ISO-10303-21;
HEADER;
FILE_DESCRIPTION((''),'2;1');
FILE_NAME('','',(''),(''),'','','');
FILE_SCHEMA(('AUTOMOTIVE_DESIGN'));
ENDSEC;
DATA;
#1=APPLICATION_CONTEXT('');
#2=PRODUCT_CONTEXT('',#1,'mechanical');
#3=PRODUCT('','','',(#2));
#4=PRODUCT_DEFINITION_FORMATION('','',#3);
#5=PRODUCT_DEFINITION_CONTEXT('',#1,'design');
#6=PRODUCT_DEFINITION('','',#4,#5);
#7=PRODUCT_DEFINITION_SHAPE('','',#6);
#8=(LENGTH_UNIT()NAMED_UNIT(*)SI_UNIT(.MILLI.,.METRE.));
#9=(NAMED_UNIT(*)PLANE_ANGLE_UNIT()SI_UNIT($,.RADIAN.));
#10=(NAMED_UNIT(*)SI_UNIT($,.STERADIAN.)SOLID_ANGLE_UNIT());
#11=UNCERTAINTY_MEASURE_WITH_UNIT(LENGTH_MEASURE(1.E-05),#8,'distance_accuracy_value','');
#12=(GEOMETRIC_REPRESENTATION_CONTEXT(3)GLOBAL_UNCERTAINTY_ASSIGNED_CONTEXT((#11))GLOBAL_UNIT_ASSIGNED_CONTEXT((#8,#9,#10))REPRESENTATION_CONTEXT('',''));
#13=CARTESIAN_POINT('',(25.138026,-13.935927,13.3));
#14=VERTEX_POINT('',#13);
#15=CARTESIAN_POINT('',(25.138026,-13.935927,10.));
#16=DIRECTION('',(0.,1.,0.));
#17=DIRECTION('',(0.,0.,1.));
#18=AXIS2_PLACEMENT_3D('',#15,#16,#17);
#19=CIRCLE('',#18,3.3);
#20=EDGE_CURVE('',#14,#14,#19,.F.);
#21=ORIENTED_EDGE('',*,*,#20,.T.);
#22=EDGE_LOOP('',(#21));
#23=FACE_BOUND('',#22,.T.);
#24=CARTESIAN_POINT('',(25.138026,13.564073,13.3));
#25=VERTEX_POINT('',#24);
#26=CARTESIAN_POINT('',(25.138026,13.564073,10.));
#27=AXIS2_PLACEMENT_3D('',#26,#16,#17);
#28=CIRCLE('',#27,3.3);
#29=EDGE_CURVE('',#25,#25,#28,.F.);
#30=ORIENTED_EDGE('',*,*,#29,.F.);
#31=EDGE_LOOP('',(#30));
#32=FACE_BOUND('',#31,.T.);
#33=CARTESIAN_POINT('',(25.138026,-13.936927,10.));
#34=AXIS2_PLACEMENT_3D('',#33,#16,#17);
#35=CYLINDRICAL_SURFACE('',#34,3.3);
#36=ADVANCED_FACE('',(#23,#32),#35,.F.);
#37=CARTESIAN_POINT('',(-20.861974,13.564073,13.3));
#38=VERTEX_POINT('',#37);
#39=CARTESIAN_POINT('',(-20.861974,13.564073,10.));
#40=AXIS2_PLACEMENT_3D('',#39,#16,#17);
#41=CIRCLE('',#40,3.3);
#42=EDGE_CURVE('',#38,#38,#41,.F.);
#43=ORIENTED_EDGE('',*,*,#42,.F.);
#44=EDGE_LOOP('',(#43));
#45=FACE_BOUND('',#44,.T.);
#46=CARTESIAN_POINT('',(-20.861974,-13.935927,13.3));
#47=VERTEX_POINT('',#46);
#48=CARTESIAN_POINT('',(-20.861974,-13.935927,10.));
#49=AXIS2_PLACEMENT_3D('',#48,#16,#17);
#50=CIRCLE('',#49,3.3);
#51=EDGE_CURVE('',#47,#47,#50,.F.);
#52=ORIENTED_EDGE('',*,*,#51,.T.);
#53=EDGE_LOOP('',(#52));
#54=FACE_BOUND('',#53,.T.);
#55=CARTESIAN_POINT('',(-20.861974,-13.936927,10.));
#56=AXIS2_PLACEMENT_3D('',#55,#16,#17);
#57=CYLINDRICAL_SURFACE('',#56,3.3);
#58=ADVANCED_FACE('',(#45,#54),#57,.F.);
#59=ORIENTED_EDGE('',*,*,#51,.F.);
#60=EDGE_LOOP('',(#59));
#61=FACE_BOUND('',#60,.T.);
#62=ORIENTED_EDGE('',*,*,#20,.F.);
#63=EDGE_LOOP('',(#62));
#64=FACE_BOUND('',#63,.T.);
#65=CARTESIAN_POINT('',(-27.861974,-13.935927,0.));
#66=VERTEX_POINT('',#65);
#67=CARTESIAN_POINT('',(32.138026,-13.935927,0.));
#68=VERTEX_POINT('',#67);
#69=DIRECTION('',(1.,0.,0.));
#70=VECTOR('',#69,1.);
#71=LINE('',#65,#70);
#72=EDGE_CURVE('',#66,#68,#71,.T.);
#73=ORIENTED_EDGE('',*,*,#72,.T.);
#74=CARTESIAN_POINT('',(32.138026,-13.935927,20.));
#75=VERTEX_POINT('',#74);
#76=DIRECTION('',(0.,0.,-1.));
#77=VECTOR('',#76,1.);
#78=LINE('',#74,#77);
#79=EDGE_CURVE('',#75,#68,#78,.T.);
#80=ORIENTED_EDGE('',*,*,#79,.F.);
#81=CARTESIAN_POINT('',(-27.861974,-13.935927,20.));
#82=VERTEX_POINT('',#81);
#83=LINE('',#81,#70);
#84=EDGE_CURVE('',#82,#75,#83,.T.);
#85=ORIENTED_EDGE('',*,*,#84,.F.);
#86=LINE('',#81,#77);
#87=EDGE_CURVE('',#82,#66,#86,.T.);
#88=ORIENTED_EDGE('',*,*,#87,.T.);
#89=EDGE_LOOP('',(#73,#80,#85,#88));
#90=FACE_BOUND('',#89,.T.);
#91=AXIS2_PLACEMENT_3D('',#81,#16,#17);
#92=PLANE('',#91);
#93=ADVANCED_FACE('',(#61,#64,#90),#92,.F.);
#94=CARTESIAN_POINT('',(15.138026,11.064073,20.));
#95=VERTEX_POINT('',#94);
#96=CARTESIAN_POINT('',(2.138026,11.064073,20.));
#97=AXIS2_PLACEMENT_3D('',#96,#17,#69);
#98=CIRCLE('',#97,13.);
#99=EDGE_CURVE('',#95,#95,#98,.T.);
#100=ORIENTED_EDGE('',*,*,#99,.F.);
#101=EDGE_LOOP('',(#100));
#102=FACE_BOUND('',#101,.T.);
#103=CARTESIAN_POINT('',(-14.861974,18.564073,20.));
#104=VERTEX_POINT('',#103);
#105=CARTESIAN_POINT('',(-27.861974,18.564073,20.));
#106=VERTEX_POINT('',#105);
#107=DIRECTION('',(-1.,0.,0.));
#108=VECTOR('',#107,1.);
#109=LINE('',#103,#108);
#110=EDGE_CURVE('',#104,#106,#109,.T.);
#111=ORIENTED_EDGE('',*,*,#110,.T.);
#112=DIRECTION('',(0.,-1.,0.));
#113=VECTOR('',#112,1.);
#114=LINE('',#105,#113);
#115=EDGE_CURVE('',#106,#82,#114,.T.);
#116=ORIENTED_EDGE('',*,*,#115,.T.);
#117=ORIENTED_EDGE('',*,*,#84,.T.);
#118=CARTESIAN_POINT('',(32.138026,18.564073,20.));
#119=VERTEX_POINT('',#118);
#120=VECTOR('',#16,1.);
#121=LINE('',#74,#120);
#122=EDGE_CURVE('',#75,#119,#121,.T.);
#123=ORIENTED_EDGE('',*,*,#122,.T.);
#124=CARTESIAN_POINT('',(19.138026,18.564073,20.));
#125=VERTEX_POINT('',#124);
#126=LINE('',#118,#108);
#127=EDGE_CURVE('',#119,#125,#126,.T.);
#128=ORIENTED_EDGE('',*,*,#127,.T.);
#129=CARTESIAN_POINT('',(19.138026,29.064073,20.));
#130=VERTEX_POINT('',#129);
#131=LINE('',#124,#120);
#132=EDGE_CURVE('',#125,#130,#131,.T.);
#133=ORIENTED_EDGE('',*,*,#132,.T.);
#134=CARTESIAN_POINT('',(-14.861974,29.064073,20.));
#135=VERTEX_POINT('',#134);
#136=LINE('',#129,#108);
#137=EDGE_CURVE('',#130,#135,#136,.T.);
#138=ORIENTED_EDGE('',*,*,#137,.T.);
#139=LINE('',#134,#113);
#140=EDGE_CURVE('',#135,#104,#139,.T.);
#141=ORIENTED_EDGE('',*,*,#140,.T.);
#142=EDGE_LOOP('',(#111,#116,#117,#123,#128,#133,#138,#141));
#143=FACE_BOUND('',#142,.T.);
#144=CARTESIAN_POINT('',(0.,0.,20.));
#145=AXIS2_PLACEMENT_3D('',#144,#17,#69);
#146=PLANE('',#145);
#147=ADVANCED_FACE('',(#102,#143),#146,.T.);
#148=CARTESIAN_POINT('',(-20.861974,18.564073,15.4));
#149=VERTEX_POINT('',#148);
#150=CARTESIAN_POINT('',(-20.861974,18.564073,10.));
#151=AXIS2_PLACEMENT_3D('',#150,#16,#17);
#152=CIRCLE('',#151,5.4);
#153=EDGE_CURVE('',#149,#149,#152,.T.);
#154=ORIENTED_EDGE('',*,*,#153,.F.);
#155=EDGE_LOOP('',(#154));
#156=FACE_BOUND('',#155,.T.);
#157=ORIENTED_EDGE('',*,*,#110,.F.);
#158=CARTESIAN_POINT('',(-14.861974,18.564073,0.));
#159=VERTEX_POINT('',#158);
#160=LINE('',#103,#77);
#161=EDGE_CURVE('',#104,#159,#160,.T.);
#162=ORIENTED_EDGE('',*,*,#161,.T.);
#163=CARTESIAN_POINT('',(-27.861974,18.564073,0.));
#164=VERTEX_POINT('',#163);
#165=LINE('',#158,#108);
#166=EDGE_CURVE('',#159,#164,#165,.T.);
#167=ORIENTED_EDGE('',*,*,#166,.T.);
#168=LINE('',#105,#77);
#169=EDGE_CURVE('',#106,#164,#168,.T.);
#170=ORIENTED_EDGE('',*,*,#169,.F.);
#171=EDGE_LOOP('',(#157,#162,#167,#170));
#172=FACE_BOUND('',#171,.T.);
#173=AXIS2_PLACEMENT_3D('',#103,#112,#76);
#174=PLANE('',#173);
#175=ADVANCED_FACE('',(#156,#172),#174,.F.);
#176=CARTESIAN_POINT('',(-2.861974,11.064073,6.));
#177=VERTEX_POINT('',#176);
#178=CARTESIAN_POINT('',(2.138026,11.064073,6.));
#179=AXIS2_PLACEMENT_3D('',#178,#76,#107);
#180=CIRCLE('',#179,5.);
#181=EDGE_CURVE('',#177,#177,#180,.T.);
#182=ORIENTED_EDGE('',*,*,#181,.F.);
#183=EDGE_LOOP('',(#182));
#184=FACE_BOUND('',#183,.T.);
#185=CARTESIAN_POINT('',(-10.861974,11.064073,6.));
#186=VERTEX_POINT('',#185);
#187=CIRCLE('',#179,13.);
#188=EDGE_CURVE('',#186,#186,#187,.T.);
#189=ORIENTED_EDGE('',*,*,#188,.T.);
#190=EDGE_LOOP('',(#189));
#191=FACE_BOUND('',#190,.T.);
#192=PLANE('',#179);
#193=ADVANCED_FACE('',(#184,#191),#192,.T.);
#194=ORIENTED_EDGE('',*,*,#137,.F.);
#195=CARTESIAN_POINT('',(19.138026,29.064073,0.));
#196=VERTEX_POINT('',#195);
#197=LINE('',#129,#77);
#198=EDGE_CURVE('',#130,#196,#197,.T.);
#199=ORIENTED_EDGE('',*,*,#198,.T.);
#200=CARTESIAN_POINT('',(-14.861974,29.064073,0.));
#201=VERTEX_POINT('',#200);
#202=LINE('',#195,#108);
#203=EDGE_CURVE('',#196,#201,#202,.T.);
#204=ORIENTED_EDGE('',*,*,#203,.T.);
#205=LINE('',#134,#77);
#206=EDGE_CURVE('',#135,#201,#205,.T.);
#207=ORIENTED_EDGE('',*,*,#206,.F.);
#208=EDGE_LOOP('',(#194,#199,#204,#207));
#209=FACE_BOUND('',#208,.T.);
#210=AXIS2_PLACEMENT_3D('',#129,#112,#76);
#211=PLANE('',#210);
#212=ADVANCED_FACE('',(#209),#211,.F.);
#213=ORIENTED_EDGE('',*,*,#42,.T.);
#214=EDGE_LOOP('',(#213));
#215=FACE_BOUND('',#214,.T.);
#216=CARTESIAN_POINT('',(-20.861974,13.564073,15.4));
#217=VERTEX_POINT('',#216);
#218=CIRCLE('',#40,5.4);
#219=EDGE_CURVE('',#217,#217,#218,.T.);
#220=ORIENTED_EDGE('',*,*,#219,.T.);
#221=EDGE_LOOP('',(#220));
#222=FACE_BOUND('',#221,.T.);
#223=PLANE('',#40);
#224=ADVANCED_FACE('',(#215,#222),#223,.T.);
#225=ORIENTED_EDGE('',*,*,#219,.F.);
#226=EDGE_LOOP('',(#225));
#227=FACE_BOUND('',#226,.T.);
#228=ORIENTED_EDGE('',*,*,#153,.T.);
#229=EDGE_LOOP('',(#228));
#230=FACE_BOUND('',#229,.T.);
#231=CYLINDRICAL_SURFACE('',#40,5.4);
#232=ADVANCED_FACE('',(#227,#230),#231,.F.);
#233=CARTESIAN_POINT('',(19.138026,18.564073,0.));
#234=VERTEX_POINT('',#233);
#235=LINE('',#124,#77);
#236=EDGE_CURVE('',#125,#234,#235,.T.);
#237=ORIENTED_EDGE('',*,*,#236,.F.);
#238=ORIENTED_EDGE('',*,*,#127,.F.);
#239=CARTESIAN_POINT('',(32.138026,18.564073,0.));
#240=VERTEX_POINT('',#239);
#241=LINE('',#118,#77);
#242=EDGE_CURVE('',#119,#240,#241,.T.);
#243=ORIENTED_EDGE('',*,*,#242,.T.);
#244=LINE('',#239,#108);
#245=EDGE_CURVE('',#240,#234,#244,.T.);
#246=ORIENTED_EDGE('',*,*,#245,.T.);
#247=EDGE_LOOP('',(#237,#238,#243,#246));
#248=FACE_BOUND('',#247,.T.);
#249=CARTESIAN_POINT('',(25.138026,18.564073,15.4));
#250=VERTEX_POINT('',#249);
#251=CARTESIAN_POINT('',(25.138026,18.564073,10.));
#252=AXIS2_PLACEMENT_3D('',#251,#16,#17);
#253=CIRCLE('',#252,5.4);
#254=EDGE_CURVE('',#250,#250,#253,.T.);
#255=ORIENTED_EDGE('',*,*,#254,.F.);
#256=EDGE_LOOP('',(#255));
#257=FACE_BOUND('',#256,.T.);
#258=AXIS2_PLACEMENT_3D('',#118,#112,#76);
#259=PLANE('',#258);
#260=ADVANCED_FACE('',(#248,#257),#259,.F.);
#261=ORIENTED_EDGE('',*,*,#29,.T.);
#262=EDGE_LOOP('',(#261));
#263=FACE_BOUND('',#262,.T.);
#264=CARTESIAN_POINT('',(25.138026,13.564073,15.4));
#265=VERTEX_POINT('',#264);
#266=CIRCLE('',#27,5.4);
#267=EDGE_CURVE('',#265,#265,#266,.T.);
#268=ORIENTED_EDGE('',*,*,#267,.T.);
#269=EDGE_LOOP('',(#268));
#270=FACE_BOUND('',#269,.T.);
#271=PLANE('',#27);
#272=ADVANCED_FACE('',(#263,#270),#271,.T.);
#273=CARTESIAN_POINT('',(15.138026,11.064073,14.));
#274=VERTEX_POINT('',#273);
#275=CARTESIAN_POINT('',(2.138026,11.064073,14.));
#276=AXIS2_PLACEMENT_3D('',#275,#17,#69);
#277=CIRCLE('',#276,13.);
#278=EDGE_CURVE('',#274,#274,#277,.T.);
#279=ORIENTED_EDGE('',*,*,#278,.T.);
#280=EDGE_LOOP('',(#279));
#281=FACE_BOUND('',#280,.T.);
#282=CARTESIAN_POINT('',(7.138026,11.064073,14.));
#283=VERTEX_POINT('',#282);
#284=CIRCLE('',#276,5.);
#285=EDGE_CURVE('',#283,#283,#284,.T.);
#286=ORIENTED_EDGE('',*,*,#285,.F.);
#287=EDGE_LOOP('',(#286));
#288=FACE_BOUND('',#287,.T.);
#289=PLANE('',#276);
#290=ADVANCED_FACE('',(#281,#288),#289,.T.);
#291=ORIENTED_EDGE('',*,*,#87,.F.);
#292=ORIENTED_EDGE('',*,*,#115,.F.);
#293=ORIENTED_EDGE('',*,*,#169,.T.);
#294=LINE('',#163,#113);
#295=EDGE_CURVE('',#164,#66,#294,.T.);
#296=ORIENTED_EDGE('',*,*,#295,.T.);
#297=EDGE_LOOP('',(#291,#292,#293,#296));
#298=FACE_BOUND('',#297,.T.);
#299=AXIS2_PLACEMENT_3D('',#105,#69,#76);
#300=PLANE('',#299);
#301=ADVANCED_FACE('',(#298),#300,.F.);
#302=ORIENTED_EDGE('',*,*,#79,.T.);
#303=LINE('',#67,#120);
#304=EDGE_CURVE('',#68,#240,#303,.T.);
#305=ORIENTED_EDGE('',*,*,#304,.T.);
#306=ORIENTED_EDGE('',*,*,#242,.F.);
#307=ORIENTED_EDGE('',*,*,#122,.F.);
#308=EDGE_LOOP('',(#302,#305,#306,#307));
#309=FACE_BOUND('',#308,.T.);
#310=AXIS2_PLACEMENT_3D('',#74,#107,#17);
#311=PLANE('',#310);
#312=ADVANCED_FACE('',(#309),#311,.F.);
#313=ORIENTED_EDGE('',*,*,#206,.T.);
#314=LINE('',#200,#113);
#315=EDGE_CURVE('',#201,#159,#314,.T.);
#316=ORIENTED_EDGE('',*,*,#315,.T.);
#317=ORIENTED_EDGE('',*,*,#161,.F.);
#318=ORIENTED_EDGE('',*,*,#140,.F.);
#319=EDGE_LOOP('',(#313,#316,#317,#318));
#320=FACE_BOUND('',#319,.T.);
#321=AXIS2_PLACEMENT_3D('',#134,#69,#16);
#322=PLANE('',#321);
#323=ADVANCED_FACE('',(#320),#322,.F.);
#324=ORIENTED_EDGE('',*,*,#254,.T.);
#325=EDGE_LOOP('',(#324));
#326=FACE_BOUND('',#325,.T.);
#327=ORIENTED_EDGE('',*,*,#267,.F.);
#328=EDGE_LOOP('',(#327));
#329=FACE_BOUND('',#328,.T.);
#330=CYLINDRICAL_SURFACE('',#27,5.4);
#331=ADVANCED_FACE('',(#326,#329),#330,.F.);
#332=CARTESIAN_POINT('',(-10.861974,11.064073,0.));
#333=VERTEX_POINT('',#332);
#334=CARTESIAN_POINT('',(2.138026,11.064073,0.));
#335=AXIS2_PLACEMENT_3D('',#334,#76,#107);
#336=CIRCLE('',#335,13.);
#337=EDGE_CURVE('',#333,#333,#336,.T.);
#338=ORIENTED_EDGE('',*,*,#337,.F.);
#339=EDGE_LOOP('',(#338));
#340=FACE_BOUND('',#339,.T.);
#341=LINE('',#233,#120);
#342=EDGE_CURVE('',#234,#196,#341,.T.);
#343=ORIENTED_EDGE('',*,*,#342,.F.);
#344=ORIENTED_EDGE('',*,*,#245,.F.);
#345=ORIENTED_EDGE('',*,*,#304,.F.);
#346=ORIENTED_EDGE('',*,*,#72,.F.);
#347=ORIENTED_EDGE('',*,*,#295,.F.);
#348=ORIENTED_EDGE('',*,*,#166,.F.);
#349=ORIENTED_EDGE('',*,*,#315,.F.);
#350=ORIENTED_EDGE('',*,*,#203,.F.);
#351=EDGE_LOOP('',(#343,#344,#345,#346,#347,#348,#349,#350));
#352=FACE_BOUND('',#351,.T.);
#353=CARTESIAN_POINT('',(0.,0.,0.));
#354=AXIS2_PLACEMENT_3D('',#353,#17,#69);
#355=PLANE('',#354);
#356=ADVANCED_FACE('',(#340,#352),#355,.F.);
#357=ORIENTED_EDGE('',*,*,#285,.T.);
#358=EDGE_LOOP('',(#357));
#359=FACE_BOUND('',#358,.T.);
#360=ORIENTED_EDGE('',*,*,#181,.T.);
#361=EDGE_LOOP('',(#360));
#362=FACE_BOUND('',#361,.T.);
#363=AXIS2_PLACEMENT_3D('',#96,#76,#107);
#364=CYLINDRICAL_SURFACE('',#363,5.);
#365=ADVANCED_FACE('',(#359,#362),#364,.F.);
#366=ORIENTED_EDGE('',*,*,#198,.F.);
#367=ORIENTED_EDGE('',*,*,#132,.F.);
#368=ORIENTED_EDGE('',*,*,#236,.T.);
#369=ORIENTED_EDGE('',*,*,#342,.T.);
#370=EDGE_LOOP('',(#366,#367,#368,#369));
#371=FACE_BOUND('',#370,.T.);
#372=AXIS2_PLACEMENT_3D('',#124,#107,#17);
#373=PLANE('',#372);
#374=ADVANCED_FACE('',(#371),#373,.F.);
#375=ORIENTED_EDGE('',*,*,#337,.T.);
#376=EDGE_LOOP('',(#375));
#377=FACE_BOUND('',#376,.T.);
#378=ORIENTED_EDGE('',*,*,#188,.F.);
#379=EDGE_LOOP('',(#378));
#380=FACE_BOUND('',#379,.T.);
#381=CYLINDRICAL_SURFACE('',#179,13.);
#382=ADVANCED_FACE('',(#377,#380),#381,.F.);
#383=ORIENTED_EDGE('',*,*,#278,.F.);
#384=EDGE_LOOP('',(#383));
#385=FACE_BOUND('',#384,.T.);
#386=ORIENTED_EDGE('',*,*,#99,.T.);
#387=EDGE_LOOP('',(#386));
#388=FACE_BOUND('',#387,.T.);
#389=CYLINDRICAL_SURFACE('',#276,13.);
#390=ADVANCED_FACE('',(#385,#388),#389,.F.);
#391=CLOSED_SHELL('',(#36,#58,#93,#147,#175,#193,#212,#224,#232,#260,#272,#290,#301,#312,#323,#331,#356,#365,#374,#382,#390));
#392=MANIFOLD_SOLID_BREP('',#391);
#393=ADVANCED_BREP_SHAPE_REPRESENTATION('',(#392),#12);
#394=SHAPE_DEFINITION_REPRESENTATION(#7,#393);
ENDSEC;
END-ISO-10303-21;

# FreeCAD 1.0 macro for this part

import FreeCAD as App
import Part
import Sketcher
from FreeCAD import Vector

doc = App.newDocument("Part")
body = doc.addObject("PartDesign::Body", "Body")

sketch1 = body.newObject("Sketcher::SketchObject", "Sketch")
sketch1.AttachmentSupport = (doc.getObject("XY_Plane"), [""])
sketch1.MapMode = "FlatFace"
sketch1.addGeometry([
    Part.LineSegment(Vector(-28, -14, 0), Vector(32, -14, 0)),
    Part.LineSegment(Vector(32, -14, 0), Vector(32, 19, 0)),
    Part.LineSegment(Vector(32, 19, 0), Vector(19, 19, 0)),
    Part.LineSegment(Vector(19, 19, 0), Vector(19, 29, 0)),
    Part.LineSegment(Vector(19, 29, 0), Vector(-15, 29, 0)),
    Part.LineSegment(Vector(-15, 29, 0), Vector(-15, 19, 0)),
    Part.LineSegment(Vector(-15, 19, 0), Vector(-28, 19, 0)),
    Part.LineSegment(Vector(-28, 19, 0), Vector(-28, -14, 0)),
    Part.Circle(Vector(2, 11, 0), Vector(0, 0, 1), 5),
], False)
sketch1.addConstraint([
    Sketcher.Constraint("Coincident", 0, 2, 1, 1),
    Sketcher.Constraint("Coincident", 1, 2, 2, 1),
    Sketcher.Constraint("Coincident", 2, 2, 3, 1),
    Sketcher.Constraint("Coincident", 3, 2, 4, 1),
    Sketcher.Constraint("Coincident", 4, 2, 5, 1),
    Sketcher.Constraint("Coincident", 5, 2, 6, 1),
    Sketcher.Constraint("Coincident", 6, 2, 7, 1),
    Sketcher.Constraint("Coincident", 7, 2, 0, 1),
    Sketcher.Constraint("Horizontal", 0),
    Sketcher.Constraint("Vertical", 1),
    Sketcher.Constraint("Horizontal", 2),
    Sketcher.Constraint("Vertical", 3),
    Sketcher.Constraint("Horizontal", 4),
    Sketcher.Constraint("Vertical", 5),
    Sketcher.Constraint("Horizontal", 6),
    Sketcher.Constraint("Vertical", 7),
    Sketcher.Constraint("Horizontal", 2, 2, 5, 2),
    Sketcher.Constraint("Equal", 2, 6),
    Sketcher.Constraint("Diameter", 8, 10.0),
    Sketcher.Constraint("DistanceX", 0, 1, 0, 2, 60.0),
    Sketcher.Constraint("DistanceX", 2, 2, 2, 1, 13.0),
    Sketcher.Constraint("DistanceY", 1, 1, 1, 2, 32.5),
    Sketcher.Constraint("DistanceY", 3, 1, 3, 2, 10.5),
    Sketcher.Constraint("DistanceX", 8, 3, 0, 2, 30.0),
    Sketcher.Constraint("DistanceY", 0, 2, 8, 3, 25.0),
    Sketcher.Constraint("DistanceX", -1, 1, 8, 3, 2.138026),
    Sketcher.Constraint("DistanceY", -1, 1, 8, 3, 11.064073),
])
pad1 = body.newObject("PartDesign::Pad", "Pad")
pad1.Profile = sketch1
pad1.Length = 20

sketch2 = body.newObject("Sketcher::SketchObject", "Sketch001")
sketch2.AttachmentSupport = (doc.getObject("XZ_Plane"), [""])
sketch2.MapMode = "FlatFace"
sketch2.AttachmentOffset = App.Placement(Vector(0, 0, -18.564073), App.Rotation())
sketch2.addGeometry(Part.Circle(Vector(25.1, 10, 0), Vector(0, 0, 1), 3.3), False)
sketch2.addConstraint([
    Sketcher.Constraint("Diameter", 0, 6.6),
    Sketcher.Constraint("DistanceY", -1, 1, 0, 3, 10.0),
    Sketcher.Constraint("DistanceX", -1, 1, 0, 3, 25.138026),
])
pocket1 = body.newObject("PartDesign::Pocket", "Pocket")
pocket1.Profile = sketch2
pocket1.Type = "UpToFirst"
pocket1.Reversed = True

sketch3 = body.newObject("Sketcher::SketchObject", "Sketch002")
sketch3.AttachmentSupport = (doc.getObject("XZ_Plane"), [""])
sketch3.MapMode = "FlatFace"
sketch3.AttachmentOffset = App.Placement(Vector(0, 0, -18.564073), App.Rotation())
sketch3.addGeometry(Part.Circle(Vector(-20.9, 10, 0), Vector(0, 0, 1), 3.3), False)
sketch3.addConstraint([
    Sketcher.Constraint("Diameter", 0, 6.6),
    Sketcher.Constraint("DistanceY", -1, 1, 0, 3, 10.0),
    Sketcher.Constraint("DistanceX", 0, 3, -1, 1, 20.861974),
])
pocket2 = body.newObject("PartDesign::Pocket", "Pocket001")
pocket2.Profile = sketch3
pocket2.Type = "UpToFirst"
pocket2.Reversed = True

sketch4 = body.newObject("Sketcher::SketchObject", "Sketch003")
sketch4.AttachmentSupport = (doc.getObject("XZ_Plane"), [""])
sketch4.MapMode = "FlatFace"
sketch4.AttachmentOffset = App.Placement(Vector(0, 0, -18.564073), App.Rotation())
sketch4.addGeometry([
    Part.Circle(Vector(25, 10, 0), Vector(0, 0, 1), 5),
    Part.Circle(Vector(-21, 10, 0), Vector(0, 0, 1), 5),
], False)
sketch4.addConstraint([
    Sketcher.Constraint("Equal", 0, 1),
    Sketcher.Constraint("Horizontal", 0, 3, 1, 3),
    Sketcher.Constraint("Diameter", 0, 10.8),
    Sketcher.Constraint("DistanceY", -1, 1, 0, 3, 10.0),
    Sketcher.Constraint("DistanceX", 1, 3, 0, 3, 46.0),
    Sketcher.Constraint("DistanceX", -1, 1, 0, 3, 25.138026),
])
pocket3 = body.newObject("PartDesign::Pocket", "Pocket002")
pocket3.Profile = sketch4
pocket3.Length = 5
pocket3.Reversed = True

sketch5 = body.newObject("Sketcher::SketchObject", "Sketch004")
sketch5.AttachmentSupport = (doc.getObject("XY_Plane"), [""])
sketch5.MapMode = "FlatFace"
sketch5.AttachmentOffset = App.Placement(Vector(0, 0, 20), App.Rotation())
sketch5.addGeometry(Part.Circle(Vector(2, 11, 0), Vector(0, 0, 1), 13), False)
sketch5.addConstraint([
    Sketcher.Constraint("Diameter", 0, 26.0),
    Sketcher.Constraint("DistanceX", -1, 1, 0, 3, 2.138026),
    Sketcher.Constraint("DistanceY", -1, 1, 0, 3, 11.064073),
])
pocket4 = body.newObject("PartDesign::Pocket", "Pocket003")
pocket4.Profile = sketch5
pocket4.Length = 6

sketch6 = body.newObject("Sketcher::SketchObject", "Sketch005")
sketch6.AttachmentSupport = (doc.getObject("XY_Plane"), [""])
sketch6.MapMode = "FlatFace"
sketch6.AttachmentOffset = App.Placement(Vector(0, 0, 6), App.Rotation())
sketch6.addGeometry(Part.Circle(Vector(2, 11, 0), Vector(0, 0, 1), 13), False)
sketch6.addConstraint([
    Sketcher.Constraint("Diameter", 0, 26.0),
    Sketcher.Constraint("DistanceX", -1, 1, 0, 3, 2.138026),
    Sketcher.Constraint("DistanceY", -1, 1, 0, 3, 11.064073),
])
pocket5 = body.newObject("PartDesign::Pocket", "Pocket004")
pocket5.Profile = sketch6
pocket5.Length = 6

doc.recompute()
